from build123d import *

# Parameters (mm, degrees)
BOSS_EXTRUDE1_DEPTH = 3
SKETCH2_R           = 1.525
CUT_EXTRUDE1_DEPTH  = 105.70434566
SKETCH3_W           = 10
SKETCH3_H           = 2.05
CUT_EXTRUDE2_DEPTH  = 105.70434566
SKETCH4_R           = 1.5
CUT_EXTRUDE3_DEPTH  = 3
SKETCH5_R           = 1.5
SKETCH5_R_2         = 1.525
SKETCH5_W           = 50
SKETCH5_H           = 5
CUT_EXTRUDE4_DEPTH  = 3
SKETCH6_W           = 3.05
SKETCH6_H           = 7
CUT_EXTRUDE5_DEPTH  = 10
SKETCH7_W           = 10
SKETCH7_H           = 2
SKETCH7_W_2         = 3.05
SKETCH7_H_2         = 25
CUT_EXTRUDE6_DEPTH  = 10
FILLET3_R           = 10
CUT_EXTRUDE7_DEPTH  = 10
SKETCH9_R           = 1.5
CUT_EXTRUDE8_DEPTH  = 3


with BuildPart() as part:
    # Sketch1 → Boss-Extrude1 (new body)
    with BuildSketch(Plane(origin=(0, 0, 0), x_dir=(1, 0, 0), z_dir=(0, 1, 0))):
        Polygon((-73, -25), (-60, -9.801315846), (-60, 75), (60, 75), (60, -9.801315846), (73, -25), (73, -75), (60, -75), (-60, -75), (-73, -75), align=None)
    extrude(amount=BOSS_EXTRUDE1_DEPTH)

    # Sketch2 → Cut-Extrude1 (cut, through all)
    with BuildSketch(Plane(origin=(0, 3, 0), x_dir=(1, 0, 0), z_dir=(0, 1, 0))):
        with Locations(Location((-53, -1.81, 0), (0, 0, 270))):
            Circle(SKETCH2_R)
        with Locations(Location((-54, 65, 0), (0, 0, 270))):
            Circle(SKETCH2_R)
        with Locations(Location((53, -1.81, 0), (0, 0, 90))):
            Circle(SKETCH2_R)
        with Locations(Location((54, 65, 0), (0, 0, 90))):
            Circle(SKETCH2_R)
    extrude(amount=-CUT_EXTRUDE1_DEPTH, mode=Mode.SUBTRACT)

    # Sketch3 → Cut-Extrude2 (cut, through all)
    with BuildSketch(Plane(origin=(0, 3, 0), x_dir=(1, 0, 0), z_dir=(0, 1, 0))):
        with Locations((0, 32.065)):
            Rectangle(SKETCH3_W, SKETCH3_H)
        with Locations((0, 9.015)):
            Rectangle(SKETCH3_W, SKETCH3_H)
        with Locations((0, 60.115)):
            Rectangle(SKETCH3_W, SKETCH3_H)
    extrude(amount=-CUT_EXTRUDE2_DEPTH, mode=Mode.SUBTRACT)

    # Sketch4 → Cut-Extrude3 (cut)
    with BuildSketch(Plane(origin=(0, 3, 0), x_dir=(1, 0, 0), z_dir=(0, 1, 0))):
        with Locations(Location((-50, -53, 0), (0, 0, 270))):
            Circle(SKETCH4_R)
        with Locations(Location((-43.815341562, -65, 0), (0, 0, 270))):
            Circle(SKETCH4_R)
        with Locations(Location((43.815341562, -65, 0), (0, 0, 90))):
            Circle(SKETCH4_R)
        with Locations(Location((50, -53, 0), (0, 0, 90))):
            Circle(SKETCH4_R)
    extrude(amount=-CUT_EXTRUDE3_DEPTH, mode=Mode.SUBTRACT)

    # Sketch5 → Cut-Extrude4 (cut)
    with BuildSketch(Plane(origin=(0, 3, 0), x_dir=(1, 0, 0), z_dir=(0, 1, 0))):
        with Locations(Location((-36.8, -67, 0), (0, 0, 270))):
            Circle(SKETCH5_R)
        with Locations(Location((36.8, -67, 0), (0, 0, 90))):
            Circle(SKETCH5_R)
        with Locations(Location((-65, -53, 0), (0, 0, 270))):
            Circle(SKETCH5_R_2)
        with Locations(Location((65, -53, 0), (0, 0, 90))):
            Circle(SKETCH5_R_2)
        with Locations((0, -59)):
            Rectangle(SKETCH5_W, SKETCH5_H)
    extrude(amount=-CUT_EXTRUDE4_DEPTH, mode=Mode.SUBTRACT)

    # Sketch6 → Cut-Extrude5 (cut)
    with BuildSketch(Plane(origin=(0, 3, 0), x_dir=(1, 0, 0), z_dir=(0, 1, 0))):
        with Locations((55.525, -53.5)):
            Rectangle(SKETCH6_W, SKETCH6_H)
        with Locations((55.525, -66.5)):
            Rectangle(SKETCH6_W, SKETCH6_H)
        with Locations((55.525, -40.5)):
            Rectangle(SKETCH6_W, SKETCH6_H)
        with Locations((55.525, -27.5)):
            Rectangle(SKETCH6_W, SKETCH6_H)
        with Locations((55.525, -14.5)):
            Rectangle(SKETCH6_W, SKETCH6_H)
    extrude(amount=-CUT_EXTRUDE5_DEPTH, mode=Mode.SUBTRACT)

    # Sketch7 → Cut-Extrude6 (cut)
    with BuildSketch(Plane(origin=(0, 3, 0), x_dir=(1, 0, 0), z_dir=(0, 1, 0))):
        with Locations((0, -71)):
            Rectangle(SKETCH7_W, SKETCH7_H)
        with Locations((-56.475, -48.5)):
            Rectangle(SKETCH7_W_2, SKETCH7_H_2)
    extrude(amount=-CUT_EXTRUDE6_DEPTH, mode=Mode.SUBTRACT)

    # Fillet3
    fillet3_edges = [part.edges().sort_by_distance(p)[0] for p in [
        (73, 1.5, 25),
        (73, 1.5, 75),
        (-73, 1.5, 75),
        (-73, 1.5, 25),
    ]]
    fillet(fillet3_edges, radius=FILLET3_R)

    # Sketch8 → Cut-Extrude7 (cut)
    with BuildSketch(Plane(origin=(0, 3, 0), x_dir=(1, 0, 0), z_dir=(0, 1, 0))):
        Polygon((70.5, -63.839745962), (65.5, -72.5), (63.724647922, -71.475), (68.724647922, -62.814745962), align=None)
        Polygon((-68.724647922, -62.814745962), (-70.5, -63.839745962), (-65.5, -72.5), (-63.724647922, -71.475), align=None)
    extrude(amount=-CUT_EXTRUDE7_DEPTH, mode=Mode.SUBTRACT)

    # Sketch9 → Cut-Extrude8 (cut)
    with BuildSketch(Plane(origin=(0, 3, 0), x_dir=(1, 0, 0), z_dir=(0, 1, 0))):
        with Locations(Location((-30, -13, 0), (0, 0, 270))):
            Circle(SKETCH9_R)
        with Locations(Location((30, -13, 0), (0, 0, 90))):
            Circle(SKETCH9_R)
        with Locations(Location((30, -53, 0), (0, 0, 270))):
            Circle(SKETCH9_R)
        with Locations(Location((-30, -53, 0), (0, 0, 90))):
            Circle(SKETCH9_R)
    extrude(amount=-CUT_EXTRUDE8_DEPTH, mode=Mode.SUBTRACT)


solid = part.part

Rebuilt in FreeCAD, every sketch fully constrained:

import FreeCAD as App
import Part
import Sketcher
Q = App.Units.Quantity


def edges_at(feature, points):
    """Names of the edges that pass closest to the given points."""
    edges = feature.Shape.Edges
    near = lambda p: min(range(len(edges)), key=lambda i: edges[i].distToShape(Part.Vertex(*p))[0])
    return sorted({f"Edge{near(p) + 1}" for p in points})


def add_polygon(sketch, points):
    """Adds a closed chain of lines whose ends are joined by coincident constraints."""
    first, n = sketch.GeometryCount, len(points)
    for a, b in zip(points, points[1:] + points[:1]):
        sketch.addGeometry(Part.LineSegment(App.Vector(*a, 0), App.Vector(*b, 0)), False)
    for i in range(n):
        sketch.addConstraint(Sketcher.Constraint("Coincident", first + i, 2, first + (i + 1) % n, 1))

doc = App.newDocument("Part")
body = doc.addObject("PartDesign::Body", "Body")

# Sketch on XZ plane
sketch1 = body.newObject("Sketcher::SketchObject", "Sketch")
sketch1.AttachmentSupport = (doc.getObject("XZ_Plane"), [""])
sketch1.MapMode = "FlatFace"
add_polygon(sketch1, [(-60, 10), (-73, 25), (-73, 75), (73, 75), (73, 25), (60, 10), (60, -75), (-60, -75)])  # lines 0-7
sketch1.addConstraint([
    Sketcher.Constraint("Vertical", 1),
    Sketcher.Constraint("Horizontal", 2),
    Sketcher.Constraint("Vertical", 3),
    Sketcher.Constraint("Vertical", 5),
    Sketcher.Constraint("Horizontal", 6),
    Sketcher.Constraint("Vertical", 7),
    Sketcher.Constraint("Symmetric", 0, 2, 3, 2, -2),
    Sketcher.Constraint("Symmetric", 4, 2, 7, 2, -2),
    Sketcher.Constraint("DistanceX", 2, 1, 2, 2, Q("146 mm")),
    Sketcher.Constraint("DistanceX", 6, 2, 6, 1, Q("120 mm")),
    Sketcher.Constraint("DistanceY", 1, 1, 1, 2, Q("50 mm")),
    Sketcher.Constraint("Distance", 0, Q("20 mm")),
    Sketcher.Constraint("DistanceY", -1, 1, 0, 2, Q("25 mm")),
    Sketcher.Constraint("DistanceY", 5, 2, -1, 1, Q("75 mm")),
])
pad1 = body.newObject("PartDesign::Pad", "Pad")
pad1.Profile = sketch1
pad1.Length = 3
pad1.Reversed = True

# Sketch on XZ plane
sketch2 = body.newObject("Sketcher::SketchObject", "Sketch001")
sketch2.AttachmentSupport = (doc.getObject("XZ_Plane"), [""])
sketch2.MapMode = "FlatFace"
sketch2.AttachmentOffset = App.Placement(App.Vector(0, 0, -3), App.Rotation())
sketch2.addGeometry([
    Part.Circle(App.Vector(-53, 1.8, 0), App.Vector(0, 0, 1), 1.5),
    Part.Circle(App.Vector(-54, -65, 0), App.Vector(0, 0, 1), 1.5),
    Part.Circle(App.Vector(53, 1.8, 0), App.Vector(0, 0, 1), 1.5),
    Part.Circle(App.Vector(54, -65, 0), App.Vector(0, 0, 1), 1.5),
], False)
sketch2.addConstraint([
    Sketcher.Constraint("Equal", 0, 1),
    Sketcher.Constraint("Equal", 1, 2),
    Sketcher.Constraint("Equal", 2, 3),
    Sketcher.Constraint("Symmetric", 0, 3, 2, 3, -2),
    Sketcher.Constraint("Symmetric", 1, 3, 3, 3, -2),
    Sketcher.Constraint("Diameter", 0, Q("3.05 mm")),
    Sketcher.Constraint("DistanceX", 0, 3, -1, 1, Q("53 mm")),
    Sketcher.Constraint("DistanceX", 1, 3, -1, 1, Q("54 mm")),
    Sketcher.Constraint("DistanceY", 1, 3, -1, 1, Q("65 mm")),
    Sketcher.Constraint("DistanceY", -1, 1, 0, 3, Q("1.81 mm")),
])
pocket1 = body.newObject("PartDesign::Pocket", "Pocket")
pocket1.Profile = sketch2
pocket1.Type = "ThroughAll"
pocket1.Reversed = True

# Sketch on XZ plane
sketch3 = body.newObject("Sketcher::SketchObject", "Sketch002")
sketch3.AttachmentSupport = (doc.getObject("XZ_Plane"), [""])
sketch3.MapMode = "FlatFace"
sketch3.AttachmentOffset = App.Placement(App.Vector(0, 0, -3), App.Rotation())
add_polygon(sketch3, [(-5, -33.1), (-5, -31), (5, -31), (5, -33.1)])  # lines 0-3
add_polygon(sketch3, [(-5, -10), (-5, -8), (5, -8), (5, -10)])  # lines 4-7
add_polygon(sketch3, [(-5, -61.1), (-5, -59.1), (5, -59.1), (5, -61.1)])  # lines 8-11
sketch3.addConstraint([
    Sketcher.Constraint("Vertical", 0),
    Sketcher.Constraint("Horizontal", 1),
    Sketcher.Constraint("Vertical", 2),
    Sketcher.Constraint("Horizontal", 3),
    Sketcher.Constraint("Vertical", 4),
    Sketcher.Constraint("Horizontal", 5),
    Sketcher.Constraint("Vertical", 6),
    Sketcher.Constraint("Horizontal", 7),
    Sketcher.Constraint("Vertical", 8),
    Sketcher.Constraint("Horizontal", 9),
    Sketcher.Constraint("Vertical", 10),
    Sketcher.Constraint("Horizontal", 11),
    Sketcher.Constraint("Vertical", 3, 2, 4, 2),
    Sketcher.Constraint("Vertical", 2, 2, 5, 2),
    Sketcher.Constraint("Vertical", 7, 2, 8, 2),
    Sketcher.Constraint("Vertical", 6, 2, 9, 2),
    Sketcher.Constraint("Equal", 2, 4),
    Sketcher.Constraint("Equal", 6, 8),
    Sketcher.Constraint("DistanceX", 1, 1, 1, 2, Q("10 mm")),
    Sketcher.Constraint("DistanceX", 0, 2, -1, 1, Q("5 mm")),
    Sketcher.Constraint("DistanceY", 1, 2, 6, 2, Q("21 mm")),
    Sketcher.Constraint("DistanceY", 8, 2, 3, 2, Q("26 mm")),
    Sketcher.Constraint("DistanceY", 0, 1, 0, 2, Q("2.05 mm")),
    Sketcher.Constraint("DistanceY", 0, 2, -1, 1, Q("31.04 mm")),
])
pocket2 = body.newObject("PartDesign::Pocket", "Pocket001")
pocket2.Profile = sketch3
pocket2.Type = "ThroughAll"
pocket2.Reversed = True

# Sketch on XZ plane
sketch4 = body.newObject("Sketcher::SketchObject", "Sketch003")
sketch4.AttachmentSupport = (doc.getObject("XZ_Plane"), [""])
sketch4.MapMode = "FlatFace"
sketch4.AttachmentOffset = App.Placement(App.Vector(0, 0, -3), App.Rotation())
sketch4.addGeometry([
    Part.Circle(App.Vector(-50, 53, 0), App.Vector(0, 0, 1), 1.5),
    Part.Circle(App.Vector(-43.8, 65, 0), App.Vector(0, 0, 1), 1.5),
    Part.Circle(App.Vector(43.8, 65, 0), App.Vector(0, 0, 1), 1.5),
    Part.Circle(App.Vector(50, 53, 0), App.Vector(0, 0, 1), 1.5),
], False)
sketch4.addConstraint([
    Sketcher.Constraint("Equal", 0, 1),
    Sketcher.Constraint("Equal", 1, 2),
    Sketcher.Constraint("Equal", 2, 3),
    Sketcher.Constraint("Symmetric", 1, 3, 2, 3, -2),
    Sketcher.Constraint("Symmetric", 0, 3, 3, 3, -2),
    Sketcher.Constraint("Diameter", 0, Q("3 mm")),
    Sketcher.Constraint("DistanceX", 0, 3, -1, 1, Q("50 mm")),
    Sketcher.Constraint("DistanceY", -1, 1, 0, 3, Q("53 mm")),
    Sketcher.Constraint("DistanceY", -1, 1, 1, 3, Q("65 mm")),
    Sketcher.Constraint("DistanceX", 1, 3, -1, 1, Q("43.815342 mm")),
])
pocket3 = body.newObject("PartDesign::Pocket", "Pocket002")
pocket3.Profile = sketch4
pocket3.Length = 3
pocket3.Reversed = True

# Sketch on XZ plane
sketch5 = body.newObject("Sketcher::SketchObject", "Sketch004")
sketch5.AttachmentSupport = (doc.getObject("XZ_Plane"), [""])
sketch5.MapMode = "FlatFace"
sketch5.AttachmentOffset = App.Placement(App.Vector(0, 0, -3), App.Rotation())
sketch5.addGeometry(Part.Circle(App.Vector(-36.8, 67, 0), App.Vector(0, 0, 1), 1.5), False)  # 0
sketch5.addGeometry(Part.Circle(App.Vector(36.8, 67, 0), App.Vector(0, 0, 1), 1.5), False)  # 1
sketch5.addGeometry(Part.Circle(App.Vector(-65, 53, 0), App.Vector(0, 0, 1), 1.5), False)  # 2
sketch5.addGeometry(Part.Circle(App.Vector(65, 53, 0), App.Vector(0, 0, 1), 1.5), False)  # 3
add_polygon(sketch5, [(-25, 56.5), (-25, 61.5), (25, 61.5), (25, 56.5)])  # lines 4-7
sketch5.addConstraint([
    Sketcher.Constraint("Vertical", 4),
    Sketcher.Constraint("Horizontal", 5),
    Sketcher.Constraint("Vertical", 6),
    Sketcher.Constraint("Horizontal", 7),
    Sketcher.Constraint("Equal", 0, 1),
    Sketcher.Constraint("Equal", 2, 3),
    Sketcher.Constraint("Symmetric", 0, 3, 1, 3, -2),
    Sketcher.Constraint("Symmetric", 2, 3, 3, 3, -2),
    Sketcher.Constraint("Diameter", 0, Q("3 mm")),
    Sketcher.Constraint("Diameter", 2, Q("3.05 mm")),
    Sketcher.Constraint("DistanceX", 5, 1, 5, 2, Q("50 mm")),
    Sketcher.Constraint("DistanceY", 4, 1, 4, 2, Q("5 mm")),
    Sketcher.Constraint("DistanceY", -1, 1, 0, 3, Q("67 mm")),
    Sketcher.Constraint("DistanceX", 2, 3, -1, 1, Q("65 mm")),
    Sketcher.Constraint("DistanceY", -1, 1, 2, 3, Q("53 mm")),
    Sketcher.Constraint("DistanceX", 4, 2, -1, 1, Q("25 mm")),
    Sketcher.Constraint("DistanceX", 0, 3, -1, 1, Q("36.8 mm")),
    Sketcher.Constraint("DistanceY", -1, 1, 4, 2, Q("61.5 mm")),
])
pocket4 = body.newObject("PartDesign::Pocket", "Pocket003")
pocket4.Profile = sketch5
pocket4.Length = 3
pocket4.Reversed = True

# Sketch on XZ plane
sketch6 = body.newObject("Sketcher::SketchObject", "Sketch005")
sketch6.AttachmentSupport = (doc.getObject("XZ_Plane"), [""])
sketch6.MapMode = "FlatFace"
sketch6.AttachmentOffset = App.Placement(App.Vector(0, 0, -3), App.Rotation())
add_polygon(sketch6, [(54, 50), (54, 57), (57, 57), (57, 50)])  # lines 0-3
add_polygon(sketch6, [(54, 63), (54, 70), (57, 70), (57, 63)])  # lines 4-7
add_polygon(sketch6, [(54, 37), (54, 44), (57, 44), (57, 37)])  # lines 8-11
add_polygon(sketch6, [(54, 24), (54, 31), (57, 31), (57, 24)])  # lines 12-15
add_polygon(sketch6, [(54, 11), (54, 18), (57, 18), (57, 11)])  # lines 16-19
sketch6.addConstraint([
    Sketcher.Constraint("Vertical", 0),
    Sketcher.Constraint("Horizontal", 1),
    Sketcher.Constraint("Vertical", 2),
    Sketcher.Constraint("Horizontal", 3),
    Sketcher.Constraint("Vertical", 4),
    Sketcher.Constraint("Horizontal", 5),
    Sketcher.Constraint("Vertical", 6),
    Sketcher.Constraint("Horizontal", 7),
    Sketcher.Constraint("Vertical", 8),
    Sketcher.Constraint("Horizontal", 9),
    Sketcher.Constraint("Vertical", 10),
    Sketcher.Constraint("Horizontal", 11),
    Sketcher.Constraint("Vertical", 12),
    Sketcher.Constraint("Horizontal", 13),
    Sketcher.Constraint("Vertical", 14),
    Sketcher.Constraint("Horizontal", 15),
    Sketcher.Constraint("Vertical", 16),
    Sketcher.Constraint("Horizontal", 17),
    Sketcher.Constraint("Vertical", 18),
    Sketcher.Constraint("Horizontal", 19),
    Sketcher.Constraint("Vertical", 3, 2, 4, 2),
    Sketcher.Constraint("Vertical", 2, 2, 5, 2),
    Sketcher.Constraint("Vertical", 7, 2, 8, 2),
    Sketcher.Constraint("Vertical", 6, 2, 9, 2),
    Sketcher.Constraint("Vertical", 11, 2, 12, 2),
    Sketcher.Constraint("Vertical", 10, 2, 13, 2),
    Sketcher.Constraint("Vertical", 15, 2, 16, 2),
    Sketcher.Constraint("Vertical", 14, 2, 17, 2),
    Sketcher.Constraint("Equal", 2, 4),
    Sketcher.Constraint("Equal", 6, 8),
    Sketcher.Constraint("Equal", 10, 12),
    Sketcher.Constraint("Equal", 14, 16),
    Sketcher.Constraint("DistanceY", 0, 1, 0, 2, Q("7 mm")),
    Sketcher.Constraint("DistanceX", -1, 1, 0, 2, Q("54 mm")),
    Sketcher.Constraint("DistanceY", -1, 1, 0, 2, Q("57 mm")),
    Sketcher.Constraint("DistanceY", -1, 1, 4, 2, Q("70 mm")),
    Sketcher.Constraint("DistanceY", -1, 1, 8, 2, Q("44 mm")),
    Sketcher.Constraint("DistanceY", -1, 1, 12, 2, Q("31 mm")),
    Sketcher.Constraint("DistanceY", -1, 1, 16, 2, Q("18 mm")),
    Sketcher.Constraint("DistanceX", 1, 1, 1, 2, Q("3.05 mm")),
])
pocket5 = body.newObject("PartDesign::Pocket", "Pocket004")
pocket5.Profile = sketch6
pocket5.Length = 10
pocket5.Reversed = True

# Sketch on XZ plane
sketch7 = body.newObject("Sketcher::SketchObject", "Sketch006")
sketch7.AttachmentSupport = (doc.getObject("XZ_Plane"), [""])
sketch7.MapMode = "FlatFace"
sketch7.AttachmentOffset = App.Placement(App.Vector(0, 0, -3), App.Rotation())
add_polygon(sketch7, [(-5, 70), (-5, 72), (5, 72), (5, 70)])  # lines 0-3
add_polygon(sketch7, [(-58, 36), (-58, 61), (-55, 61), (-55, 36)])  # lines 4-7
sketch7.addConstraint([
    Sketcher.Constraint("Vertical", 0),
    Sketcher.Constraint("Horizontal", 1),
    Sketcher.Constraint("Vertical", 2),
    Sketcher.Constraint("Horizontal", 3),
    Sketcher.Constraint("Vertical", 4),
    Sketcher.Constraint("Horizontal", 5),
    Sketcher.Constraint("Vertical", 6),
    Sketcher.Constraint("Horizontal", 7),
    Sketcher.Constraint("DistanceX", 1, 1, 1, 2, Q("10 mm")),
    Sketcher.Constraint("DistanceY", 0, 1, 0, 2, Q("2 mm")),
    Sketcher.Constraint("DistanceY", 4, 1, 4, 2, Q("25 mm")),
    Sketcher.Constraint("DistanceX", 0, 2, -1, 1, Q("5 mm")),
    Sketcher.Constraint("DistanceY", -1, 1, 0, 2, Q("72 mm")),
    Sketcher.Constraint("DistanceX", 4, 2, -1, 1, Q("58 mm")),
    Sketcher.Constraint("DistanceY", -1, 1, 4, 2, Q("61 mm")),
    Sketcher.Constraint("DistanceX", 5, 1, 5, 2, Q("3.05 mm")),
])
pocket6 = body.newObject("PartDesign::Pocket", "Pocket005")
pocket6.Profile = sketch7
pocket6.Length = 10
pocket6.Reversed = True
doc.recompute()

fillet = body.newObject("PartDesign::Fillet", "Fillet")
fillet.Base = (pocket6, edges_at(pocket6, [
    (73, 1.5, 25),
    (73, 1.5, 75),
    (-73, 1.5, 75),
    (-73, 1.5, 25),
]))
fillet.Radius = 10

# Sketch on XZ plane
sketch8 = body.newObject("Sketcher::SketchObject", "Sketch007")
sketch8.AttachmentSupport = (doc.getObject("XZ_Plane"), [""])
sketch8.MapMode = "FlatFace"
sketch8.AttachmentOffset = App.Placement(App.Vector(0, 0, -3), App.Rotation())
add_polygon(sketch8, [(65.5, 72.5), (70.5, 63.8), (68.7, 62.8), (63.7, 71.5)])  # lines 0-3
add_polygon(sketch8, [(-68.7, 62.8), (-70.5, 63.8), (-65.5, 72.5), (-63.7, 71.5)])  # lines 4-7
sketch8.addConstraint([
    Sketcher.Constraint("Symmetric", 0, 2, 4, 2, -2),
    Sketcher.Constraint("Symmetric", 3, 2, 5, 2, -2),
    Sketcher.Constraint("Symmetric", 2, 2, 6, 2, -2),
    Sketcher.Constraint("Symmetric", 1, 2, 7, 2, -2),
    Sketcher.Constraint("Perpendicular", 0, 1),
    Sketcher.Constraint("Perpendicular", 1, 2),
    Sketcher.Constraint("Perpendicular", 2, 3),
    Sketcher.Constraint("Angle", 0, Q("-60 deg")),
    Sketcher.Constraint("Distance", 0, Q("10 mm")),
    Sketcher.Constraint("DistanceX", 4, 2, 3, 2, Q("136 mm")),
    Sketcher.Constraint("DistanceY", -1, 1, 3, 2, Q("72.5 mm")),
    Sketcher.Constraint("Distance", 1, Q("2.05 mm")),
])
pocket7 = body.newObject("PartDesign::Pocket", "Pocket006")
pocket7.Profile = sketch8
pocket7.Length = 10
pocket7.Reversed = True

# Sketch on XZ plane
sketch9 = body.newObject("Sketcher::SketchObject", "Sketch008")
sketch9.AttachmentSupport = (doc.getObject("XZ_Plane"), [""])
sketch9.MapMode = "FlatFace"
sketch9.AttachmentOffset = App.Placement(App.Vector(0, 0, -3), App.Rotation())
sketch9.addGeometry([
    Part.Circle(App.Vector(-30, 13, 0), App.Vector(0, 0, 1), 1.5),
    Part.Circle(App.Vector(30, 13, 0), App.Vector(0, 0, 1), 1.5),
    Part.Circle(App.Vector(30, 53, 0), App.Vector(0, 0, 1), 1.5),
    Part.Circle(App.Vector(-30, 53, 0), App.Vector(0, 0, 1), 1.5),
], False)
sketch9.addConstraint([
    Sketcher.Constraint("Equal", 0, 1),
    Sketcher.Constraint("Equal", 1, 2),
    Sketcher.Constraint("Equal", 2, 3),
    Sketcher.Constraint("Symmetric", 0, 3, 1, 3, -2),
    Sketcher.Constraint("Symmetric", 2, 3, 3, 3, -2),
    Sketcher.Constraint("Vertical", 1, 3, 2, 3),
    Sketcher.Constraint("Diameter", 0, Q("3 mm")),
    Sketcher.Constraint("DistanceX", 0, 3, -1, 1, Q("30 mm")),
    Sketcher.Constraint("DistanceY", -1, 1, 0, 3, Q("13 mm")),
    Sketcher.Constraint("DistanceY", -1, 1, 2, 3, Q("53 mm")),
])
pocket8 = body.newObject("PartDesign::Pocket", "Pocket007")
pocket8.Profile = sketch9
pocket8.Length = 3
pocket8.Reversed = True

doc.recompute()
